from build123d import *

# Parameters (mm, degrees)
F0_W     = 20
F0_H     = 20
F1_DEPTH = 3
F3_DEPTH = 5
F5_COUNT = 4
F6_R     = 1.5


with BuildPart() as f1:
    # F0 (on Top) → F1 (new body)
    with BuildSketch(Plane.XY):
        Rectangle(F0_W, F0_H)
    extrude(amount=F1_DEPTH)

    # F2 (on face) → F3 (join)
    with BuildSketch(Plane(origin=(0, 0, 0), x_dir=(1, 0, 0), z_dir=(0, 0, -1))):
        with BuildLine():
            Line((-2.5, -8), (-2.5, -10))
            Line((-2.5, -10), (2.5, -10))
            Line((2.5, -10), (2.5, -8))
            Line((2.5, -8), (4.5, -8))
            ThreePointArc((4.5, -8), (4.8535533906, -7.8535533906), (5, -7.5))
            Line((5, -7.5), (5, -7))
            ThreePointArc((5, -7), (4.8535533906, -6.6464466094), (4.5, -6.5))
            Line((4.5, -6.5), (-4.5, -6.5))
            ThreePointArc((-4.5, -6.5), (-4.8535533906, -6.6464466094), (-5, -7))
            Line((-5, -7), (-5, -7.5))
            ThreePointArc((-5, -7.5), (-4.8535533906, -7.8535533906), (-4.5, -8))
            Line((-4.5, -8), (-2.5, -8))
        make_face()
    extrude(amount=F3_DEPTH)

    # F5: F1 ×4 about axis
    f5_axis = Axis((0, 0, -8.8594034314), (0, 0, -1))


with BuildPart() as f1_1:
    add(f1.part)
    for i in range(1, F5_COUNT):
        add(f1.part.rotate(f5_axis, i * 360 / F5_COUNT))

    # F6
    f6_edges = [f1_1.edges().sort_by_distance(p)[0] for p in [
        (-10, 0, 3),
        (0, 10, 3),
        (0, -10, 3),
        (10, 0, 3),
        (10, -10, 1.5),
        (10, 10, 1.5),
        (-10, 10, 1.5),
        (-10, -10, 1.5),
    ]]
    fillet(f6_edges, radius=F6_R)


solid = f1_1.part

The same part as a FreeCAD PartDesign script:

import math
import FreeCAD as App
import Part
import Sketcher
from FreeCAD import Vector


def edges_at(feature, points):
    """Names of the edges that pass closest to the given points."""
    edges = feature.Shape.Edges
    near = lambda p: min(range(len(edges)), key=lambda i: edges[i].distToShape(Part.Vertex(*p))[0])
    return sorted({f"Edge{near(p) + 1}" for p in points})

doc = App.newDocument("Part")
body = doc.addObject("PartDesign::Body", "Body")

# Sketch on XY plane
sketch1 = body.newObject("Sketcher::SketchObject", "Sketch")
sketch1.AttachmentSupport = (doc.getObject("XY_Plane"), [""])
sketch1.MapMode = "FlatFace"
sketch1.addGeometry(Part.LineSegment(Vector(-10, 10, 0), Vector(-10, -10, 0)), False)
sketch1.addGeometry(Part.LineSegment(Vector(-10, -10, 0), Vector(10, -10, 0)), False)
sketch1.addGeometry(Part.LineSegment(Vector(10, -10, 0), Vector(10, 10, 0)), False)
sketch1.addGeometry(Part.LineSegment(Vector(10, 10, 0), Vector(-10, 10, 0)), False)
sketch1.addConstraint(Sketcher.Constraint("Coincident", 0, 2, 1, 1))
sketch1.addConstraint(Sketcher.Constraint("Coincident", 1, 2, 2, 1))
sketch1.addConstraint(Sketcher.Constraint("Coincident", 2, 2, 3, 1))
sketch1.addConstraint(Sketcher.Constraint("Coincident", 3, 2, 0, 1))
sketch1.addConstraint(Sketcher.Constraint("Vertical", 0))
sketch1.addConstraint(Sketcher.Constraint("Horizontal", 1))
sketch1.addConstraint(Sketcher.Constraint("Vertical", 2))
sketch1.addConstraint(Sketcher.Constraint("Horizontal", 3))
sketch1.addConstraint(Sketcher.Constraint("Symmetric", 0, 2, 2, 2, -1, 1))
sketch1.addConstraint(Sketcher.Constraint("Equal", 3, 0))
sketch1.addConstraint(Sketcher.Constraint("DistanceX", 1, 1, 1, 2, 20.0))
pad1 = body.newObject("PartDesign::Pad", "Pad")
pad1.Profile = sketch1
pad1.Length = 3

# Sketch on XY plane
sketch2 = body.newObject("Sketcher::SketchObject", "Sketch001")
sketch2.AttachmentSupport = (doc.getObject("XY_Plane"), [""])
sketch2.MapMode = "FlatFace"
sketch2.addGeometry(Part.LineSegment(Vector(-2.5, 8, 0), Vector(-2.5, 10, 0)), False)
sketch2.addGeometry(Part.LineSegment(Vector(-2.5, 10, 0), Vector(2.5, 10, 0)), False)
sketch2.addGeometry(Part.LineSegment(Vector(2.5, 10, 0), Vector(2.5, 8, 0)), False)
sketch2.addGeometry(Part.LineSegment(Vector(2.5, 8, 0), Vector(4.5, 8, 0)), False)
sketch2.addGeometry(Part.ArcOfCircle(Part.Circle(Vector(4.5, 7.5, 0), Vector(0, 0, 1), 0.5), math.radians(0), math.radians(90)), False)
sketch2.addGeometry(Part.LineSegment(Vector(5, 7.5, 0), Vector(5, 7, 0)), False)
sketch2.addGeometry(Part.ArcOfCircle(Part.Circle(Vector(4.5, 7, 0), Vector(0, 0, 1), 0.5), math.radians(-90), math.radians(0)), False)
sketch2.addGeometry(Part.LineSegment(Vector(4.5, 6.5, 0), Vector(-4.5, 6.5, 0)), False)
sketch2.addGeometry(Part.ArcOfCircle(Part.Circle(Vector(-4.5, 7, 0), Vector(0, 0, 1), 0.5), math.radians(180), math.radians(270)), False)
sketch2.addGeometry(Part.LineSegment(Vector(-5, 7, 0), Vector(-5, 7.5, 0)), False)
sketch2.addGeometry(Part.ArcOfCircle(Part.Circle(Vector(-4.5, 7.5, 0), Vector(0, 0, 1), 0.5), math.radians(90), math.radians(180)), False)
sketch2.addGeometry(Part.LineSegment(Vector(-4.5, 8, 0), Vector(-2.5, 8, 0)), False)
sketch2.addConstraint(Sketcher.Constraint("Coincident", 0, 2, 1, 1))
sketch2.addConstraint(Sketcher.Constraint("Coincident", 1, 2, 2, 1))
sketch2.addConstraint(Sketcher.Constraint("Coincident", 2, 2, 3, 1))
sketch2.addConstraint(Sketcher.Constraint("Tangent", 3, 2, 4, 2))
sketch2.addConstraint(Sketcher.Constraint("Tangent", 4, 1, 5, 1))
sketch2.addConstraint(Sketcher.Constraint("Tangent", 5, 2, 6, 2))
sketch2.addConstraint(Sketcher.Constraint("Tangent", 6, 1, 7, 1))
sketch2.addConstraint(Sketcher.Constraint("Tangent", 7, 2, 8, 2))
sketch2.addConstraint(Sketcher.Constraint("Tangent", 8, 1, 9, 1))
sketch2.addConstraint(Sketcher.Constraint("Tangent", 9, 2, 10, 2))
sketch2.addConstraint(Sketcher.Constraint("Tangent", 10, 1, 11, 1))
sketch2.addConstraint(Sketcher.Constraint("Coincident", 11, 2, 0, 1))
sketch2.addConstraint(Sketcher.Constraint("Vertical", 0))
sketch2.addConstraint(Sketcher.Constraint("Horizontal", 1))
sketch2.addConstraint(Sketcher.Constraint("Vertical", 2))
sketch2.addConstraint(Sketcher.Constraint("Horizontal", 3))
sketch2.addConstraint(Sketcher.Constraint("Vertical", 5))
sketch2.addConstraint(Sketcher.Constraint("Horizontal", 7))
sketch2.addConstraint(Sketcher.Constraint("Vertical", 9))
sketch2.addConstraint(Sketcher.Constraint("Horizontal", 11))
sketch2.addConstraint(Sketcher.Constraint("Equal", 4, 6))
sketch2.addConstraint(Sketcher.Constraint("Equal", 6, 8))
sketch2.addConstraint(Sketcher.Constraint("Equal", 8, 10))
sketch2.addConstraint(Sketcher.Constraint("Symmetric", 4, 3, 10, 3, -2))
sketch2.addConstraint(Sketcher.Constraint("Equal", 3, 11))
sketch2.addConstraint(Sketcher.Constraint("Equal", 11, 0))
sketch2.addConstraint(Sketcher.Constraint("Radius", 4, 0.5))
sketch2.addConstraint(Sketcher.Constraint("DistanceX", 1, 1, 1, 2, 5.0))
sketch2.addConstraint(Sketcher.Constraint("DistanceX", 3, 1, 3, 2, 2.0))
sketch2.addConstraint(Sketcher.Constraint("DistanceY", 5, 2, 5, 1, 0.5))
sketch2.addConstraint(Sketcher.Constraint("DistanceY", -1, 1, 6, 3, 7.0))
pad2 = body.newObject("PartDesign::Pad", "Pad001")
pad2.Profile = sketch2
pad2.Length = 5
pad2.Reversed = True
body2 = doc.addObject("PartDesign::Body", "Body001")
doc.recompute()

body2.BaseFeature = body
doc.recompute()

body3 = doc.addObject("PartDesign::Body", "Body002")
body3.BaseFeature = body
body3.Placement = App.Placement(Vector(0, 0, 0), App.Rotation(Vector(0, 0, -1), 90))
boolean = body2.newObject("PartDesign::Boolean", "Boolean")
boolean.Type = "Fuse"
boolean.addObjects([body3])
doc.recompute()

body4 = doc.addObject("PartDesign::Body", "Body003")
body4.BaseFeature = body
body4.Placement = App.Placement(Vector(0, 0, 0), App.Rotation(Vector(0, 0, -1), 180))
boolean2 = body2.newObject("PartDesign::Boolean", "Boolean001")
boolean2.Type = "Fuse"
boolean2.addObjects([body4])
doc.recompute()

body.Placement = App.Placement(Vector(0, 0, 0), App.Rotation(Vector(0, 0, -1), 270))
boolean3 = body2.newObject("PartDesign::Boolean", "Boolean002")
boolean3.Type = "Fuse"
boolean3.addObjects([body])
doc.recompute()

fillet = body2.newObject("PartDesign::Fillet", "Fillet")
fillet.Base = (boolean3, edges_at(boolean3, [
    (-10, 0, 3),
    (0, 10, 3),
    (0, -10, 3),
    (10, 0, 3),
    (10, -10, 1.5),
    (10, 10, 1.5),
    (-10, 10, 1.5),
    (-10, -10, 1.5),
]))
fillet.Radius = 1.5

doc.recompute()
